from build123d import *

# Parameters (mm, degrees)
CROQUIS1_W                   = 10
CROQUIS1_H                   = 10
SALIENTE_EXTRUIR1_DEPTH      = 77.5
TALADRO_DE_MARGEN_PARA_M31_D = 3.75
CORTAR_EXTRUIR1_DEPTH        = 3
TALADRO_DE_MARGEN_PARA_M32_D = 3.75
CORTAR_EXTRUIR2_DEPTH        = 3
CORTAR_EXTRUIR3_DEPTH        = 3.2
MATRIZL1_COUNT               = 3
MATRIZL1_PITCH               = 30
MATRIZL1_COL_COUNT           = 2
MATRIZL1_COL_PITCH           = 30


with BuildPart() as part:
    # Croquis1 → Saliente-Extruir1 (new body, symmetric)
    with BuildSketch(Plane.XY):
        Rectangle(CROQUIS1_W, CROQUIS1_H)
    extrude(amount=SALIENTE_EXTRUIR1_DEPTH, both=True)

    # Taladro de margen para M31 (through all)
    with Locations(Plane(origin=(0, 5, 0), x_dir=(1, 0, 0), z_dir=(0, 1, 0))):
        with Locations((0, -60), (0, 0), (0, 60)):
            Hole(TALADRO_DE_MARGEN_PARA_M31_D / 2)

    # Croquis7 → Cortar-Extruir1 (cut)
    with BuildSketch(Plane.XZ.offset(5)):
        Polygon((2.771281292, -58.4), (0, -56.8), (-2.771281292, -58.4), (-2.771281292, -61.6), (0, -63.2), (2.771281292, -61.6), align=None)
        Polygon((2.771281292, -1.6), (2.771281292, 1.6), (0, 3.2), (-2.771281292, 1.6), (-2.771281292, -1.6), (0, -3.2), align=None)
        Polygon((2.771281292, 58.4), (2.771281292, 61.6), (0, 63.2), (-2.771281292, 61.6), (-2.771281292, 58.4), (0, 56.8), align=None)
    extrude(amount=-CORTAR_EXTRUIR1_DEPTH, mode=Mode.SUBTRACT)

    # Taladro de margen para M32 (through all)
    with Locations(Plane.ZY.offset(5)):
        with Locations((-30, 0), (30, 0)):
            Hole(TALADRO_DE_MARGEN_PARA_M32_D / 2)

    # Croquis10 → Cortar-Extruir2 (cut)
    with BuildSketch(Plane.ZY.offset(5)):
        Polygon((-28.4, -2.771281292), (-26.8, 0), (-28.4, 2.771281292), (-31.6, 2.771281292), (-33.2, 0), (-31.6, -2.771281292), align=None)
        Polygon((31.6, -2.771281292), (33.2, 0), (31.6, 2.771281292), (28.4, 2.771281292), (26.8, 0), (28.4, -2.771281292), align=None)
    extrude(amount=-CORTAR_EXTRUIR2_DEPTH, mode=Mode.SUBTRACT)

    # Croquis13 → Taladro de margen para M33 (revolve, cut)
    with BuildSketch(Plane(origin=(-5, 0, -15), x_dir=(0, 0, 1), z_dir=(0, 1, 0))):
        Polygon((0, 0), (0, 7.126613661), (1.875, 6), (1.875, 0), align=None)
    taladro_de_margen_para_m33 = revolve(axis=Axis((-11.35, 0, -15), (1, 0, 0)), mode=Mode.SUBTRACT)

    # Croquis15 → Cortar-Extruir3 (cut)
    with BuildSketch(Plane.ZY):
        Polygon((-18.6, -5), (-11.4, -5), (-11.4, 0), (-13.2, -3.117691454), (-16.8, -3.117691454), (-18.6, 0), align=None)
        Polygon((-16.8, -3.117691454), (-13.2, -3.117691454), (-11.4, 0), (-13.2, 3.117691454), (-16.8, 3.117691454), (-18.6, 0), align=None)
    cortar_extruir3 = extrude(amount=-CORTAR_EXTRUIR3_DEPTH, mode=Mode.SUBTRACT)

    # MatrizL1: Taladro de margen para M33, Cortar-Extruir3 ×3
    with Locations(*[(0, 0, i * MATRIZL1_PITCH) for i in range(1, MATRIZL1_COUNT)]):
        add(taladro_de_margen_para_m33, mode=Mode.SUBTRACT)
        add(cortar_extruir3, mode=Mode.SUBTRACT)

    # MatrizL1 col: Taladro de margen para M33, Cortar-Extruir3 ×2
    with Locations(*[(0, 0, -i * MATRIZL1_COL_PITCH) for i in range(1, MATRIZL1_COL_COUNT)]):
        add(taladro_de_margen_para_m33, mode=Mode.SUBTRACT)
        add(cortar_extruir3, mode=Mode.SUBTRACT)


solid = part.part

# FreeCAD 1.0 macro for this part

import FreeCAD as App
import Part
import Sketcher

V = App.Vector
Q = App.Units.Quantity


def add_polygon(sketch, points):
    """Adds a closed chain of lines whose ends are joined by coincident constraints."""
    first, n = sketch.GeometryCount, len(points)
    for a, b in zip(points, points[1:] + points[:1]):
        sketch.addGeometry(Part.LineSegment(App.Vector(*a, 0), App.Vector(*b, 0)), False)
    for i in range(n):
        sketch.addConstraint(Sketcher.Constraint("Coincident", first + i, 2, first + (i + 1) % n, 1))

doc = App.newDocument("Part")
body = doc.addObject("PartDesign::Body", "Body")

# Sketch on XY plane
sketch1 = body.newObject("Sketcher::SketchObject", "Sketch")
sketch1.AttachmentSupport = (doc.getObject("XY_Plane"), [""])
sketch1.MapMode = "FlatFace"
add_polygon(sketch1, [(-5, 5), (-5, -5), (5, -5), (5, 5)])  # lines 0-3
sketch1.addConstraint([
    Sketcher.Constraint("Vertical", 0),
    Sketcher.Constraint("Horizontal", 1),
    Sketcher.Constraint("Vertical", 2),
    Sketcher.Constraint("Horizontal", 3),
    Sketcher.Constraint("Symmetric", 0, 2, 2, 2, -1, 1),
    Sketcher.Constraint("Equal", 3, 0),
    Sketcher.Constraint("DistanceX", 1, 1, 1, 2, Q("10 mm")),
])
pad1 = body.newObject("PartDesign::Pad", "Pad")
pad1.Profile = sketch1
pad1.Length = 155
pad1.Midplane = True

# Sketch on XZ plane
sketch2 = body.newObject("Sketcher::SketchObject", "Sketch001")
sketch2.AttachmentSupport = (doc.getObject("XZ_Plane"), [""])
sketch2.MapMode = "FlatFace"
sketch2.AttachmentOffset = App.Placement(V(0, 0, -5), App.Rotation())
sketch2.addGeometry([
    Part.Circle(V(0, 60, 0), V(0, 0, 1), 1.9),
    Part.Circle(V(0, 0, 0), V(0, 0, 1), 1.9),
    Part.Circle(V(0, -60, 0), V(0, 0, 1), 1.9),
], False)
sketch2.addConstraint([
    Sketcher.Constraint("Coincident", 1, 3, -1, 1),
    Sketcher.Constraint("Equal", 0, 1),
    Sketcher.Constraint("Equal", 1, 2),
    Sketcher.Constraint("Symmetric", 0, 3, 2, 3, -1, 1),
    Sketcher.Constraint("PointOnObject", 0, 3, -2),
    Sketcher.Constraint("Diameter", 0, Q("3.75 mm")),
    Sketcher.Constraint("DistanceY", -1, 1, 0, 3, Q("60 mm")),
])
doc.recompute()
hole = body.newObject("PartDesign::Hole", "Hole")
hole.Profile = sketch2
hole.ThreadType = "None"
hole.Diameter = 3.75
hole.DepthType = "ThroughAll"
hole.Reversed = True

# Sketch on XZ plane
sketch3 = body.newObject("Sketcher::SketchObject", "Sketch002")
sketch3.AttachmentSupport = (doc.getObject("XZ_Plane"), [""])
sketch3.MapMode = "FlatFace"
sketch3.AttachmentOffset = App.Placement(V(0, 0, 5), App.Rotation())
add_polygon(sketch3, [(2.8, -58.4), (0, -56.8), (-2.8, -58.4), (-2.8, -61.6), (0, -63.2), (2.8, -61.6)])  # lines 0-5
add_polygon(sketch3, [(2.8, -1.6), (2.8, 1.6), (0, 3.2), (-2.8, 1.6), (-2.8, -1.6), (0, -3.2)])  # lines 6-11
add_polygon(sketch3, [(2.8, 58.4), (2.8, 61.6), (0, 63.2), (-2.8, 61.6), (-2.8, 58.4), (0, 56.8)])  # lines 12-17
sketch3.addConstraint([
    Sketcher.Constraint("Vertical", 2),
    Sketcher.Constraint("Vertical", 5),
    Sketcher.Constraint("Vertical", 6),
    Sketcher.Constraint("Vertical", 9),
    Sketcher.Constraint("Vertical", 12),
    Sketcher.Constraint("Vertical", 15),
    Sketcher.Constraint("Symmetric", 6, 2, 9, 2, -1, 1),
    Sketcher.Constraint("Symmetric", 7, 2, 10, 2, -1, 1),
    Sketcher.Constraint("Symmetric", 2, 2, 12, 2, -1, 1),
    Sketcher.Constraint("Symmetric", 3, 2, 13, 2, -1, 1),
    Sketcher.Constraint("Symmetric", 4, 2, 14, 2, -1, 1),
    Sketcher.Constraint("Symmetric", 0, 2, 16, 2, -1, 1),
    Sketcher.Constraint("Symmetric", 2, 2, 4, 2, -2),
    Sketcher.Constraint("PointOnObject", 0, 2, -2),
    Sketcher.Constraint("PointOnObject", 3, 2, -2),
    Sketcher.Constraint("PointOnObject", 7, 2, -2),
    Sketcher.Constraint("Parallel", 0, 3),
    Sketcher.Constraint("Parallel", 1, 4),
    Sketcher.Constraint("Parallel", 3, 7),
    Sketcher.Constraint("Parallel", 4, 8),
    Sketcher.Constraint("Parallel", 8, 11),
    Sketcher.Constraint("Parallel", 13, 16),
    Sketcher.Constraint("Parallel", 14, 17),
    Sketcher.Constraint("Vertical", 5, 2, 6, 2),
    Sketcher.Constraint("Equal", 5, 6),
    Sketcher.Constraint("Angle", 0, Q("150 deg")),
    Sketcher.Constraint("DistanceY", 2, 2, 2, 1, Q("3.2 mm")),
    Sketcher.Constraint("DistanceY", 5, 2, 6, 2, Q("60 mm")),
    Sketcher.Constraint("Distance", 0, Q("3.2 mm")),
])
pocket1 = body.newObject("PartDesign::Pocket", "Pocket")
pocket1.Profile = sketch3
pocket1.Length = 3

# Sketch on YZ plane
sketch4 = body.newObject("Sketcher::SketchObject", "Sketch003")
sketch4.AttachmentSupport = (doc.getObject("YZ_Plane"), [""])
sketch4.MapMode = "FlatFace"
sketch4.AttachmentOffset = App.Placement(V(0, 0, -5), App.Rotation())
sketch4.addGeometry([
    Part.Circle(V(0, -30, 0), V(0, 0, 1), 1.9),
    Part.Circle(V(0, 30, 0), V(0, 0, 1), 1.9),
], False)
sketch4.addConstraint([
    Sketcher.Constraint("Equal", 0, 1),
    Sketcher.Constraint("Symmetric", 0, 3, 1, 3, -1, 1),
    Sketcher.Constraint("PointOnObject", 0, 3, -2),
    Sketcher.Constraint("Diameter", 0, Q("3.75 mm")),
    Sketcher.Constraint("DistanceY", 0, 3, -1, 1, Q("30 mm")),
])
doc.recompute()
hole2 = body.newObject("PartDesign::Hole", "Hole001")
hole2.Profile = sketch4
hole2.ThreadType = "None"
hole2.Diameter = 3.75
hole2.DepthType = "ThroughAll"
hole2.Reversed = True

# Sketch on YZ plane
sketch5 = body.newObject("Sketcher::SketchObject", "Sketch004")
sketch5.AttachmentSupport = (doc.getObject("YZ_Plane"), [""])
sketch5.MapMode = "FlatFace"
sketch5.AttachmentOffset = App.Placement(V(0, 0, -5), App.Rotation())
add_polygon(sketch5, [(-2.8, -28.4), (0, -26.8), (2.8, -28.4), (2.8, -31.6), (0, -33.2), (-2.8, -31.6)])  # lines 0-5
add_polygon(sketch5, [(-2.8, 31.6), (0, 33.2), (2.8, 31.6), (2.8, 28.4), (0, 26.8), (-2.8, 28.4)])  # lines 6-11
sketch5.addConstraint([
    Sketcher.Constraint("Vertical", 2),
    Sketcher.Constraint("Vertical", 5),
    Sketcher.Constraint("Vertical", 8),
    Sketcher.Constraint("Vertical", 11),
    Sketcher.Constraint("Symmetric", 3, 2, 6, 2, -1, 1),
    Sketcher.Constraint("Symmetric", 4, 2, 7, 2, -1, 1),
    Sketcher.Constraint("Symmetric", 0, 2, 9, 2, -1, 1),
    Sketcher.Constraint("Symmetric", 1, 2, 10, 2, -1, 1),
    Sketcher.Constraint("Symmetric", 2, 2, 4, 2, -2),
    Sketcher.Constraint("PointOnObject", 0, 2, -2),
    Sketcher.Constraint("PointOnObject", 3, 2, -2),
    Sketcher.Constraint("Parallel", 0, 3),
    Sketcher.Constraint("Parallel", 1, 4),
    Sketcher.Constraint("Parallel", 3, 6),
    Sketcher.Constraint("Parallel", 6, 9),
    Sketcher.Constraint("Angle", 0, Q("30 deg")),
    Sketcher.Constraint("DistanceY", 2, 2, 2, 1, Q("3.2 mm")),
    Sketcher.Constraint("DistanceY", 0, 2, 6, 2, Q("60 mm")),
    Sketcher.Constraint("Distance", 0, Q("3.2 mm")),
])
pocket2 = body.newObject("PartDesign::Pocket", "Pocket001")
pocket2.Profile = sketch5
pocket2.Length = 3
pocket2.Reversed = True

# Sketch on XZ plane
sketch6 = body.newObject("Sketcher::SketchObject", "Sketch005")
sketch6.AttachmentSupport = (doc.getObject("XZ_Plane"), [""])
sketch6.MapMode = "FlatFace"
add_polygon(sketch6, [(2.1, -15), (-5, -15), (-5, -13.1), (1, -13.1)])  # lines 0-3
sketch6.addGeometry(Part.LineSegment(V(-5, -15, 0), V(2.1, -15, 0)), True)  # axis
sketch6.addConstraint([
    Sketcher.Constraint("Horizontal", 0),
    Sketcher.Constraint("Vertical", 1),
    Sketcher.Constraint("Horizontal", 2),
    Sketcher.Constraint("Horizontal", 4),
    Sketcher.Constraint("Coincident", 4, 1, 0, 2),
    Sketcher.Constraint("Equal", 0, 4),
    Sketcher.Constraint("DistanceX", 2, 1, 2, 2, Q("6 mm")),
    Sketcher.Constraint("Angle", 3, Q("-59 deg")),
    Sketcher.Constraint("DistanceX", 0, 2, -1, 1, Q("5 mm")),
    Sketcher.Constraint("DistanceY", 0, 2, -1, 1, Q("15 mm")),
    Sketcher.Constraint("DistanceY", 1, 1, 1, 2, Q("1.875 mm")),
])
groove = body.newObject("PartDesign::Groove", "Groove")
groove.Profile = sketch6
groove.ReferenceAxis = (sketch6, ["Axis0"])
groove.Angle = 360

# Sketch on YZ plane
sketch7 = body.newObject("Sketcher::SketchObject", "Sketch006")
sketch7.AttachmentSupport = (doc.getObject("YZ_Plane"), [""])
sketch7.MapMode = "FlatFace"
add_polygon(sketch7, [(-5, -18.6), (-5, -11.4), (0, -11.4), (3.1, -13.2), (3.1, -16.8), (0, -18.6)])  # lines 0-5
sketch7.addConstraint([
    Sketcher.Constraint("Vertical", 0),
    Sketcher.Constraint("Horizontal", 1),
    Sketcher.Constraint("Vertical", 3),
    Sketcher.Constraint("Horizontal", 5),
    Sketcher.Constraint("PointOnObject", 1, 2, -2),
    Sketcher.Constraint("PointOnObject", 4, 2, -2),
    Sketcher.Constraint("Equal", 2, 4),
    Sketcher.Constraint("DistanceX", 1, 1, 1, 2, Q("5 mm")),
    Sketcher.Constraint("Angle", 2, Q("-30 deg")),
    Sketcher.Constraint("DistanceY", 0, 1, 0, 2, Q("7.2 mm")),
    Sketcher.Constraint("DistanceY", 3, 2, 3, 1, Q("3.6 mm")),
    Sketcher.Constraint("DistanceY", 0, 2, -1, 1, Q("11.4 mm")),
])
pocket3 = body.newObject("PartDesign::Pocket", "Pocket002")
pocket3.Profile = sketch7
pocket3.Length = 3.2
pocket3.Reversed = True
doc.recompute()

linearpattern = body.newObject("PartDesign::LinearPattern", "LinearPattern")
linearpattern.Originals = [groove, pocket3]
linearpattern.Direction = (doc.getObject("Z_Axis"), [""])
linearpattern.Mode = "offset"
linearpattern.Offset = 30
linearpattern.Occurrences = 3
body.Tip = linearpattern
doc.recompute()

linearpattern2 = body.newObject("PartDesign::LinearPattern", "LinearPattern001")
linearpattern2.Originals = [groove, pocket3]
linearpattern2.Direction = (doc.getObject("Z_Axis"), [""])
linearpattern2.Mode = "offset"
linearpattern2.Offset = 30
linearpattern2.Occurrences = 2
linearpattern2.Reversed = True
body.Tip = linearpattern2

doc.recompute()
